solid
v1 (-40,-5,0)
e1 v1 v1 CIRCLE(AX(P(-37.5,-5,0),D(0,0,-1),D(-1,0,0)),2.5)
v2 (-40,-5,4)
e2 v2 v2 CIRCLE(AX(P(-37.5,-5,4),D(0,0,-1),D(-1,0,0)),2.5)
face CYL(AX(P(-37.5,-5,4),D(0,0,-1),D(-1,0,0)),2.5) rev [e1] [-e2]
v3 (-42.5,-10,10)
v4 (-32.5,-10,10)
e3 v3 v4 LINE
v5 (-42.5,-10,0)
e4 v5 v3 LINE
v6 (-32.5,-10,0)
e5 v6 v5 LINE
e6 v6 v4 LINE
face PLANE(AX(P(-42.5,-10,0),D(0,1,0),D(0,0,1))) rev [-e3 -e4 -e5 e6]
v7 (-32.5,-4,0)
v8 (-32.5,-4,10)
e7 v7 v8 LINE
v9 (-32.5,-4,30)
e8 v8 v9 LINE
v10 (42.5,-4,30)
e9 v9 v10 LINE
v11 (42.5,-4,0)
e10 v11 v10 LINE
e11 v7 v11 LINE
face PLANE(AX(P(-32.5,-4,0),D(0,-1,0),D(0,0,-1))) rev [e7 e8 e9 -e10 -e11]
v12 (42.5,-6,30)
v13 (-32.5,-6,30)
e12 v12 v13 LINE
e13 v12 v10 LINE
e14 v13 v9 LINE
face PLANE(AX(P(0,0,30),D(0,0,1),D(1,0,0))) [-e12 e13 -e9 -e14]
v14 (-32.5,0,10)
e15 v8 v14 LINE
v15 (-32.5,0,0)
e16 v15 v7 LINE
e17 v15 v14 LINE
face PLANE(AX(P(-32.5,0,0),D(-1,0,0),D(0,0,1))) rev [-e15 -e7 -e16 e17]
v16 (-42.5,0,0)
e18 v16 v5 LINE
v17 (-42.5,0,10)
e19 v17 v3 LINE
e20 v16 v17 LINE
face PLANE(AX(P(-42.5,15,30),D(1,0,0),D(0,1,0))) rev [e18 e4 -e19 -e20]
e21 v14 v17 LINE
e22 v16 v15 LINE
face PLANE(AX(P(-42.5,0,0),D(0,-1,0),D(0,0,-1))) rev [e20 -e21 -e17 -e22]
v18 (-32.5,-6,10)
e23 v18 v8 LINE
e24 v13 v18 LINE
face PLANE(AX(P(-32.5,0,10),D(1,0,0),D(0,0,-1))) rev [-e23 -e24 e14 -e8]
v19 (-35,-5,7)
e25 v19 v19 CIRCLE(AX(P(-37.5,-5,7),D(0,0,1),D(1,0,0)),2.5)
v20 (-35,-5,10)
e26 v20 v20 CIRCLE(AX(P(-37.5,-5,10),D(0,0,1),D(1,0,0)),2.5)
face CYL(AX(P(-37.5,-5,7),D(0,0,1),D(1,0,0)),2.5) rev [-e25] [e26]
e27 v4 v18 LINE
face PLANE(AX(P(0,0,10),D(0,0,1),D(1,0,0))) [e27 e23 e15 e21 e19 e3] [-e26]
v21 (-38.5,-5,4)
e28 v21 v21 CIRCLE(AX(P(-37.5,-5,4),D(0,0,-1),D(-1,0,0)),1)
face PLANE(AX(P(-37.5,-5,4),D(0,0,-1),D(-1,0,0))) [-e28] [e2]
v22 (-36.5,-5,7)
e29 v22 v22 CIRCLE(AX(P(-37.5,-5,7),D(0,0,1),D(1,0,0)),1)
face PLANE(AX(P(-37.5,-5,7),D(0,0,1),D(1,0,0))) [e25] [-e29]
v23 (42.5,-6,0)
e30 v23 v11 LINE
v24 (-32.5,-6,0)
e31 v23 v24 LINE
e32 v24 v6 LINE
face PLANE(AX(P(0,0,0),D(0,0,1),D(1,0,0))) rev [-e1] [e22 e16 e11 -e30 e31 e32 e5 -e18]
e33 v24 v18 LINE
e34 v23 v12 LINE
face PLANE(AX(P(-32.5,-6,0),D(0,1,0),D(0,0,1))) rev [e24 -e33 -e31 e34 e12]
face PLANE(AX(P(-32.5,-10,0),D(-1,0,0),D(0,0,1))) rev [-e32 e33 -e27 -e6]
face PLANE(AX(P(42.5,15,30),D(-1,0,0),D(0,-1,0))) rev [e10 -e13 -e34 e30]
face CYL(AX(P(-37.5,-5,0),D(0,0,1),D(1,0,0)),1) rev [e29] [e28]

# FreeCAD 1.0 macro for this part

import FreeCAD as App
import Part
import Sketcher

doc = App.newDocument("Part")
body = doc.addObject("PartDesign::Body", "Body")

sketch1 = doc.addObject("Sketcher::SketchObject", "Sketch")
body.addObject(sketch1)
sketch1.AttachmentSupport = (doc.XY_Plane, [""])
sketch1.MapMode = "FlatFace"
sketch1.addGeometry(Part.LineSegment(App.Vector(-42.5, 15, 0), App.Vector(-42.5, -15, 0)), False)
sketch1.addGeometry(Part.LineSegment(App.Vector(-42.5, -15, 0), App.Vector(42.5, -15, 0)), False)
sketch1.addGeometry(Part.LineSegment(App.Vector(42.5, -15, 0), App.Vector(42.5, 15, 0)), False)
sketch1.addGeometry(Part.LineSegment(App.Vector(42.5, 15, 0), App.Vector(-42.5, 15, 0)), False)
sketch1.addConstraint(Sketcher.Constraint("Coincident", 0, 2, 1, 1))
sketch1.addConstraint(Sketcher.Constraint("Coincident", 1, 2, 2, 1))
sketch1.addConstraint(Sketcher.Constraint("Coincident", 2, 2, 3, 1))
sketch1.addConstraint(Sketcher.Constraint("Coincident", 3, 2, 0, 1))
sketch1.addConstraint(Sketcher.Constraint("Vertical", 0))
sketch1.addConstraint(Sketcher.Constraint("Horizontal", 1))
sketch1.addConstraint(Sketcher.Constraint("Vertical", 2))
sketch1.addConstraint(Sketcher.Constraint("Horizontal", 3))
sketch1.addConstraint(Sketcher.Constraint("Symmetric", 0, 2, 2, 2, -1, 1))
sketch1.addConstraint(Sketcher.Constraint("DistanceX", 1, 1, 1, 2, 85.0))
sketch1.addConstraint(Sketcher.Constraint("DistanceY", 0, 2, 0, 1, 30.0))
pad1 = doc.addObject("PartDesign::Pad", "Pad")
body.addObject(pad1)
pad1.Profile = sketch1
pad1.Length = 30

sketch2 = doc.addObject("Sketcher::SketchObject", "Sketch001")
body.addObject(sketch2)
sketch2.AttachmentSupport = (doc.XY_Plane, [""])
sketch2.MapMode = "FlatFace"
sketch2.AttachmentOffset = App.Placement(App.Vector(0, 0, 30), App.Rotation())
sketch2.addGeometry(Part.LineSegment(App.Vector(-42.5, 0, 0), App.Vector(-32.5, 0, 0)), False)
sketch2.addGeometry(Part.LineSegment(App.Vector(-32.5, 0, 0), App.Vector(-32.5, -4, 0)), False)
sketch2.addGeometry(Part.LineSegment(App.Vector(-32.5, -4, 0), App.Vector(42.5, -4, 0)), False)
sketch2.addGeometry(Part.LineSegment(App.Vector(42.5, -4, 0), App.Vector(42.5, 15, 0)), False)
sketch2.addGeometry(Part.LineSegment(App.Vector(42.5, 15, 0), App.Vector(-42.5, 15, 0)), False)
sketch2.addGeometry(Part.LineSegment(App.Vector(-42.5, 15, 0), App.Vector(-42.5, 0, 0)), False)
sketch2.addGeometry(Part.LineSegment(App.Vector(-32.5, -10, 0), App.Vector(-42.5, -10, 0)), False)
sketch2.addGeometry(Part.LineSegment(App.Vector(-42.5, -10, 0), App.Vector(-42.5, -15, 0)), False)
sketch2.addGeometry(Part.LineSegment(App.Vector(-42.5, -15, 0), App.Vector(42.5, -15, 0)), False)
sketch2.addGeometry(Part.LineSegment(App.Vector(42.5, -15, 0), App.Vector(42.5, -6, 0)), False)
sketch2.addGeometry(Part.LineSegment(App.Vector(42.5, -6, 0), App.Vector(-32.5, -6, 0)), False)
sketch2.addGeometry(Part.LineSegment(App.Vector(-32.5, -6, 0), App.Vector(-32.5, -10, 0)), False)
sketch2.addConstraint(Sketcher.Constraint("Coincident", 0, 2, 1, 1))
sketch2.addConstraint(Sketcher.Constraint("Coincident", 1, 2, 2, 1))
sketch2.addConstraint(Sketcher.Constraint("Coincident", 2, 2, 3, 1))
sketch2.addConstraint(Sketcher.Constraint("Coincident", 3, 2, 4, 1))
sketch2.addConstraint(Sketcher.Constraint("Coincident", 4, 2, 5, 1))
sketch2.addConstraint(Sketcher.Constraint("Coincident", 5, 2, 0, 1))
sketch2.addConstraint(Sketcher.Constraint("Coincident", 6, 2, 7, 1))
sketch2.addConstraint(Sketcher.Constraint("Coincident", 7, 2, 8, 1))
sketch2.addConstraint(Sketcher.Constraint("Coincident", 8, 2, 9, 1))
sketch2.addConstraint(Sketcher.Constraint("Coincident", 9, 2, 10, 1))
sketch2.addConstraint(Sketcher.Constraint("Coincident", 10, 2, 11, 1))
sketch2.addConstraint(Sketcher.Constraint("Coincident", 11, 2, 6, 1))
sketch2.addConstraint(Sketcher.Constraint("Horizontal", 0))
sketch2.addConstraint(Sketcher.Constraint("Vertical", 1))
sketch2.addConstraint(Sketcher.Constraint("Horizontal", 2))
sketch2.addConstraint(Sketcher.Constraint("Vertical", 3))
sketch2.addConstraint(Sketcher.Constraint("Horizontal", 4))
sketch2.addConstraint(Sketcher.Constraint("Vertical", 5))
sketch2.addConstraint(Sketcher.Constraint("Horizontal", 6))
sketch2.addConstraint(Sketcher.Constraint("Vertical", 7))
sketch2.addConstraint(Sketcher.Constraint("Horizontal", 8))
sketch2.addConstraint(Sketcher.Constraint("Vertical", 9))
sketch2.addConstraint(Sketcher.Constraint("Horizontal", 10))
sketch2.addConstraint(Sketcher.Constraint("Vertical", 11))
sketch2.addConstraint(Sketcher.Constraint("Symmetric", 3, 2, 7, 2, -1, 1))
sketch2.addConstraint(Sketcher.Constraint("PointOnObject", 0, 2, -1))
sketch2.addConstraint(Sketcher.Constraint("Vertical", 5, 2, 6, 2))
sketch2.addConstraint(Sketcher.Constraint("Vertical", 3, 2, 8, 2))
sketch2.addConstraint(Sketcher.Constraint("Vertical", 1, 2, 10, 2))
sketch2.addConstraint(Sketcher.Constraint("Equal", 1, 11))
sketch2.addConstraint(Sketcher.Constraint("DistanceX", 0, 1, 0, 2, 10.0))
sketch2.addConstraint(Sketcher.Constraint("DistanceX", 2, 1, 2, 2, 75.0))
sketch2.addConstraint(Sketcher.Constraint("DistanceY", 1, 2, 1, 1, 4.0))
sketch2.addConstraint(Sketcher.Constraint("DistanceY", 3, 1, 3, 2, 19.0))
sketch2.addConstraint(Sketcher.Constraint("DistanceY", 7, 2, 7, 1, 5.0))
pocket1 = doc.addObject("PartDesign::Pocket", "Pocket")
body.addObject(pocket1)
pocket1.Profile = sketch2
pocket1.Length = 30

sketch3 = doc.addObject("Sketcher::SketchObject", "Sketch002")
body.addObject(sketch3)
sketch3.AttachmentSupport = (doc.XY_Plane, [""])
sketch3.MapMode = "FlatFace"
sketch3.AttachmentOffset = App.Placement(App.Vector(0, 0, 30), App.Rotation())
sketch3.addGeometry(Part.LineSegment(App.Vector(-42.5, 0, 0), App.Vector(-42.5, -10, 0)), False)
sketch3.addGeometry(Part.LineSegment(App.Vector(-42.5, -10, 0), App.Vector(-32.5, -10, 0)), False)
sketch3.addGeometry(Part.LineSegment(App.Vector(-32.5, -10, 0), App.Vector(-32.5, 0, 0)), False)
sketch3.addGeometry(Part.LineSegment(App.Vector(-32.5, 0, 0), App.Vector(-42.5, 0, 0)), False)
sketch3.addConstraint(Sketcher.Constraint("Coincident", 0, 2, 1, 1))
sketch3.addConstraint(Sketcher.Constraint("Coincident", 1, 2, 2, 1))
sketch3.addConstraint(Sketcher.Constraint("Coincident", 2, 2, 3, 1))
sketch3.addConstraint(Sketcher.Constraint("Coincident", 3, 2, 0, 1))
sketch3.addConstraint(Sketcher.Constraint("Vertical", 0))
sketch3.addConstraint(Sketcher.Constraint("Horizontal", 1))
sketch3.addConstraint(Sketcher.Constraint("Vertical", 2))
sketch3.addConstraint(Sketcher.Constraint("Horizontal", 3))
sketch3.addConstraint(Sketcher.Constraint("PointOnObject", 2, 2, -1))
sketch3.addConstraint(Sketcher.Constraint("Equal", 3, 0))
sketch3.addConstraint(Sketcher.Constraint("DistanceX", 1, 1, 1, 2, 10.0))
sketch3.addConstraint(Sketcher.Constraint("DistanceX", 0, 2, -1, 1, 42.5))
pocket2 = doc.addObject("PartDesign::Pocket", "Pocket001")
body.addObject(pocket2)
pocket2.Profile = sketch3
pocket2.Length = 20

sketch4 = doc.addObject("Sketcher::SketchObject", "Sketch003")
body.addObject(sketch4)
sketch4.AttachmentSupport = (doc.XY_Plane, [""])
sketch4.MapMode = "FlatFace"
sketch4.addGeometry(Part.Circle(App.Vector(-37.5, -5, 0), App.Vector(0, 0, 1), 2.5), False)
sketch4.addConstraint(Sketcher.Constraint("Diameter", 0, 5.0))
sketch4.addConstraint(Sketcher.Constraint("DistanceY", 0, 3, -1, 1, 5.0))
sketch4.addConstraint(Sketcher.Constraint("DistanceX", 0, 3, -1, 1, 37.5))
pocket3 = doc.addObject("PartDesign::Pocket", "Pocket002")
body.addObject(pocket3)
pocket3.Profile = sketch4
pocket3.Length = 4
pocket3.Reversed = True

sketch5 = doc.addObject("Sketcher::SketchObject", "Sketch004")
body.addObject(sketch5)
sketch5.AttachmentSupport = (doc.XY_Plane, [""])
sketch5.MapMode = "FlatFace"
sketch5.AttachmentOffset = App.Placement(App.Vector(0, 0, 7), App.Rotation())
sketch5.addGeometry(Part.Circle(App.Vector(-37.5, -5, 0), App.Vector(0, 0, 1), 2.5), False)
sketch5.addConstraint(Sketcher.Constraint("Diameter", 0, 5.0))
sketch5.addConstraint(Sketcher.Constraint("DistanceY", 0, 3, -1, 1, 5.0))
sketch5.addConstraint(Sketcher.Constraint("DistanceX", 0, 3, -1, 1, 37.5))
pocket4 = doc.addObject("PartDesign::Pocket", "Pocket003")
body.addObject(pocket4)
pocket4.Profile = sketch5
pocket4.Length = 3
pocket4.Reversed = True

sketch6 = doc.addObject("Sketcher::SketchObject", "Sketch005")
body.addObject(sketch6)
sketch6.AttachmentSupport = (doc.XY_Plane, [""])
sketch6.MapMode = "FlatFace"
sketch6.AttachmentOffset = App.Placement(App.Vector(0, 0, 7), App.Rotation())
sketch6.addGeometry(Part.Circle(App.Vector(-37.5, -5, 0), App.Vector(0, 0, 1), 1), False)
sketch6.addConstraint(Sketcher.Constraint("Diameter", 0, 2.0))
sketch6.addConstraint(Sketcher.Constraint("DistanceY", 0, 3, -1, 1, 5.0))
sketch6.addConstraint(Sketcher.Constraint("DistanceX", 0, 3, -1, 1, 37.5))
pocket5 = doc.addObject("PartDesign::Pocket", "Pocket004")
body.addObject(pocket5)
pocket5.Profile = sketch6
pocket5.Type = "ThroughAll"

doc.recompute()
